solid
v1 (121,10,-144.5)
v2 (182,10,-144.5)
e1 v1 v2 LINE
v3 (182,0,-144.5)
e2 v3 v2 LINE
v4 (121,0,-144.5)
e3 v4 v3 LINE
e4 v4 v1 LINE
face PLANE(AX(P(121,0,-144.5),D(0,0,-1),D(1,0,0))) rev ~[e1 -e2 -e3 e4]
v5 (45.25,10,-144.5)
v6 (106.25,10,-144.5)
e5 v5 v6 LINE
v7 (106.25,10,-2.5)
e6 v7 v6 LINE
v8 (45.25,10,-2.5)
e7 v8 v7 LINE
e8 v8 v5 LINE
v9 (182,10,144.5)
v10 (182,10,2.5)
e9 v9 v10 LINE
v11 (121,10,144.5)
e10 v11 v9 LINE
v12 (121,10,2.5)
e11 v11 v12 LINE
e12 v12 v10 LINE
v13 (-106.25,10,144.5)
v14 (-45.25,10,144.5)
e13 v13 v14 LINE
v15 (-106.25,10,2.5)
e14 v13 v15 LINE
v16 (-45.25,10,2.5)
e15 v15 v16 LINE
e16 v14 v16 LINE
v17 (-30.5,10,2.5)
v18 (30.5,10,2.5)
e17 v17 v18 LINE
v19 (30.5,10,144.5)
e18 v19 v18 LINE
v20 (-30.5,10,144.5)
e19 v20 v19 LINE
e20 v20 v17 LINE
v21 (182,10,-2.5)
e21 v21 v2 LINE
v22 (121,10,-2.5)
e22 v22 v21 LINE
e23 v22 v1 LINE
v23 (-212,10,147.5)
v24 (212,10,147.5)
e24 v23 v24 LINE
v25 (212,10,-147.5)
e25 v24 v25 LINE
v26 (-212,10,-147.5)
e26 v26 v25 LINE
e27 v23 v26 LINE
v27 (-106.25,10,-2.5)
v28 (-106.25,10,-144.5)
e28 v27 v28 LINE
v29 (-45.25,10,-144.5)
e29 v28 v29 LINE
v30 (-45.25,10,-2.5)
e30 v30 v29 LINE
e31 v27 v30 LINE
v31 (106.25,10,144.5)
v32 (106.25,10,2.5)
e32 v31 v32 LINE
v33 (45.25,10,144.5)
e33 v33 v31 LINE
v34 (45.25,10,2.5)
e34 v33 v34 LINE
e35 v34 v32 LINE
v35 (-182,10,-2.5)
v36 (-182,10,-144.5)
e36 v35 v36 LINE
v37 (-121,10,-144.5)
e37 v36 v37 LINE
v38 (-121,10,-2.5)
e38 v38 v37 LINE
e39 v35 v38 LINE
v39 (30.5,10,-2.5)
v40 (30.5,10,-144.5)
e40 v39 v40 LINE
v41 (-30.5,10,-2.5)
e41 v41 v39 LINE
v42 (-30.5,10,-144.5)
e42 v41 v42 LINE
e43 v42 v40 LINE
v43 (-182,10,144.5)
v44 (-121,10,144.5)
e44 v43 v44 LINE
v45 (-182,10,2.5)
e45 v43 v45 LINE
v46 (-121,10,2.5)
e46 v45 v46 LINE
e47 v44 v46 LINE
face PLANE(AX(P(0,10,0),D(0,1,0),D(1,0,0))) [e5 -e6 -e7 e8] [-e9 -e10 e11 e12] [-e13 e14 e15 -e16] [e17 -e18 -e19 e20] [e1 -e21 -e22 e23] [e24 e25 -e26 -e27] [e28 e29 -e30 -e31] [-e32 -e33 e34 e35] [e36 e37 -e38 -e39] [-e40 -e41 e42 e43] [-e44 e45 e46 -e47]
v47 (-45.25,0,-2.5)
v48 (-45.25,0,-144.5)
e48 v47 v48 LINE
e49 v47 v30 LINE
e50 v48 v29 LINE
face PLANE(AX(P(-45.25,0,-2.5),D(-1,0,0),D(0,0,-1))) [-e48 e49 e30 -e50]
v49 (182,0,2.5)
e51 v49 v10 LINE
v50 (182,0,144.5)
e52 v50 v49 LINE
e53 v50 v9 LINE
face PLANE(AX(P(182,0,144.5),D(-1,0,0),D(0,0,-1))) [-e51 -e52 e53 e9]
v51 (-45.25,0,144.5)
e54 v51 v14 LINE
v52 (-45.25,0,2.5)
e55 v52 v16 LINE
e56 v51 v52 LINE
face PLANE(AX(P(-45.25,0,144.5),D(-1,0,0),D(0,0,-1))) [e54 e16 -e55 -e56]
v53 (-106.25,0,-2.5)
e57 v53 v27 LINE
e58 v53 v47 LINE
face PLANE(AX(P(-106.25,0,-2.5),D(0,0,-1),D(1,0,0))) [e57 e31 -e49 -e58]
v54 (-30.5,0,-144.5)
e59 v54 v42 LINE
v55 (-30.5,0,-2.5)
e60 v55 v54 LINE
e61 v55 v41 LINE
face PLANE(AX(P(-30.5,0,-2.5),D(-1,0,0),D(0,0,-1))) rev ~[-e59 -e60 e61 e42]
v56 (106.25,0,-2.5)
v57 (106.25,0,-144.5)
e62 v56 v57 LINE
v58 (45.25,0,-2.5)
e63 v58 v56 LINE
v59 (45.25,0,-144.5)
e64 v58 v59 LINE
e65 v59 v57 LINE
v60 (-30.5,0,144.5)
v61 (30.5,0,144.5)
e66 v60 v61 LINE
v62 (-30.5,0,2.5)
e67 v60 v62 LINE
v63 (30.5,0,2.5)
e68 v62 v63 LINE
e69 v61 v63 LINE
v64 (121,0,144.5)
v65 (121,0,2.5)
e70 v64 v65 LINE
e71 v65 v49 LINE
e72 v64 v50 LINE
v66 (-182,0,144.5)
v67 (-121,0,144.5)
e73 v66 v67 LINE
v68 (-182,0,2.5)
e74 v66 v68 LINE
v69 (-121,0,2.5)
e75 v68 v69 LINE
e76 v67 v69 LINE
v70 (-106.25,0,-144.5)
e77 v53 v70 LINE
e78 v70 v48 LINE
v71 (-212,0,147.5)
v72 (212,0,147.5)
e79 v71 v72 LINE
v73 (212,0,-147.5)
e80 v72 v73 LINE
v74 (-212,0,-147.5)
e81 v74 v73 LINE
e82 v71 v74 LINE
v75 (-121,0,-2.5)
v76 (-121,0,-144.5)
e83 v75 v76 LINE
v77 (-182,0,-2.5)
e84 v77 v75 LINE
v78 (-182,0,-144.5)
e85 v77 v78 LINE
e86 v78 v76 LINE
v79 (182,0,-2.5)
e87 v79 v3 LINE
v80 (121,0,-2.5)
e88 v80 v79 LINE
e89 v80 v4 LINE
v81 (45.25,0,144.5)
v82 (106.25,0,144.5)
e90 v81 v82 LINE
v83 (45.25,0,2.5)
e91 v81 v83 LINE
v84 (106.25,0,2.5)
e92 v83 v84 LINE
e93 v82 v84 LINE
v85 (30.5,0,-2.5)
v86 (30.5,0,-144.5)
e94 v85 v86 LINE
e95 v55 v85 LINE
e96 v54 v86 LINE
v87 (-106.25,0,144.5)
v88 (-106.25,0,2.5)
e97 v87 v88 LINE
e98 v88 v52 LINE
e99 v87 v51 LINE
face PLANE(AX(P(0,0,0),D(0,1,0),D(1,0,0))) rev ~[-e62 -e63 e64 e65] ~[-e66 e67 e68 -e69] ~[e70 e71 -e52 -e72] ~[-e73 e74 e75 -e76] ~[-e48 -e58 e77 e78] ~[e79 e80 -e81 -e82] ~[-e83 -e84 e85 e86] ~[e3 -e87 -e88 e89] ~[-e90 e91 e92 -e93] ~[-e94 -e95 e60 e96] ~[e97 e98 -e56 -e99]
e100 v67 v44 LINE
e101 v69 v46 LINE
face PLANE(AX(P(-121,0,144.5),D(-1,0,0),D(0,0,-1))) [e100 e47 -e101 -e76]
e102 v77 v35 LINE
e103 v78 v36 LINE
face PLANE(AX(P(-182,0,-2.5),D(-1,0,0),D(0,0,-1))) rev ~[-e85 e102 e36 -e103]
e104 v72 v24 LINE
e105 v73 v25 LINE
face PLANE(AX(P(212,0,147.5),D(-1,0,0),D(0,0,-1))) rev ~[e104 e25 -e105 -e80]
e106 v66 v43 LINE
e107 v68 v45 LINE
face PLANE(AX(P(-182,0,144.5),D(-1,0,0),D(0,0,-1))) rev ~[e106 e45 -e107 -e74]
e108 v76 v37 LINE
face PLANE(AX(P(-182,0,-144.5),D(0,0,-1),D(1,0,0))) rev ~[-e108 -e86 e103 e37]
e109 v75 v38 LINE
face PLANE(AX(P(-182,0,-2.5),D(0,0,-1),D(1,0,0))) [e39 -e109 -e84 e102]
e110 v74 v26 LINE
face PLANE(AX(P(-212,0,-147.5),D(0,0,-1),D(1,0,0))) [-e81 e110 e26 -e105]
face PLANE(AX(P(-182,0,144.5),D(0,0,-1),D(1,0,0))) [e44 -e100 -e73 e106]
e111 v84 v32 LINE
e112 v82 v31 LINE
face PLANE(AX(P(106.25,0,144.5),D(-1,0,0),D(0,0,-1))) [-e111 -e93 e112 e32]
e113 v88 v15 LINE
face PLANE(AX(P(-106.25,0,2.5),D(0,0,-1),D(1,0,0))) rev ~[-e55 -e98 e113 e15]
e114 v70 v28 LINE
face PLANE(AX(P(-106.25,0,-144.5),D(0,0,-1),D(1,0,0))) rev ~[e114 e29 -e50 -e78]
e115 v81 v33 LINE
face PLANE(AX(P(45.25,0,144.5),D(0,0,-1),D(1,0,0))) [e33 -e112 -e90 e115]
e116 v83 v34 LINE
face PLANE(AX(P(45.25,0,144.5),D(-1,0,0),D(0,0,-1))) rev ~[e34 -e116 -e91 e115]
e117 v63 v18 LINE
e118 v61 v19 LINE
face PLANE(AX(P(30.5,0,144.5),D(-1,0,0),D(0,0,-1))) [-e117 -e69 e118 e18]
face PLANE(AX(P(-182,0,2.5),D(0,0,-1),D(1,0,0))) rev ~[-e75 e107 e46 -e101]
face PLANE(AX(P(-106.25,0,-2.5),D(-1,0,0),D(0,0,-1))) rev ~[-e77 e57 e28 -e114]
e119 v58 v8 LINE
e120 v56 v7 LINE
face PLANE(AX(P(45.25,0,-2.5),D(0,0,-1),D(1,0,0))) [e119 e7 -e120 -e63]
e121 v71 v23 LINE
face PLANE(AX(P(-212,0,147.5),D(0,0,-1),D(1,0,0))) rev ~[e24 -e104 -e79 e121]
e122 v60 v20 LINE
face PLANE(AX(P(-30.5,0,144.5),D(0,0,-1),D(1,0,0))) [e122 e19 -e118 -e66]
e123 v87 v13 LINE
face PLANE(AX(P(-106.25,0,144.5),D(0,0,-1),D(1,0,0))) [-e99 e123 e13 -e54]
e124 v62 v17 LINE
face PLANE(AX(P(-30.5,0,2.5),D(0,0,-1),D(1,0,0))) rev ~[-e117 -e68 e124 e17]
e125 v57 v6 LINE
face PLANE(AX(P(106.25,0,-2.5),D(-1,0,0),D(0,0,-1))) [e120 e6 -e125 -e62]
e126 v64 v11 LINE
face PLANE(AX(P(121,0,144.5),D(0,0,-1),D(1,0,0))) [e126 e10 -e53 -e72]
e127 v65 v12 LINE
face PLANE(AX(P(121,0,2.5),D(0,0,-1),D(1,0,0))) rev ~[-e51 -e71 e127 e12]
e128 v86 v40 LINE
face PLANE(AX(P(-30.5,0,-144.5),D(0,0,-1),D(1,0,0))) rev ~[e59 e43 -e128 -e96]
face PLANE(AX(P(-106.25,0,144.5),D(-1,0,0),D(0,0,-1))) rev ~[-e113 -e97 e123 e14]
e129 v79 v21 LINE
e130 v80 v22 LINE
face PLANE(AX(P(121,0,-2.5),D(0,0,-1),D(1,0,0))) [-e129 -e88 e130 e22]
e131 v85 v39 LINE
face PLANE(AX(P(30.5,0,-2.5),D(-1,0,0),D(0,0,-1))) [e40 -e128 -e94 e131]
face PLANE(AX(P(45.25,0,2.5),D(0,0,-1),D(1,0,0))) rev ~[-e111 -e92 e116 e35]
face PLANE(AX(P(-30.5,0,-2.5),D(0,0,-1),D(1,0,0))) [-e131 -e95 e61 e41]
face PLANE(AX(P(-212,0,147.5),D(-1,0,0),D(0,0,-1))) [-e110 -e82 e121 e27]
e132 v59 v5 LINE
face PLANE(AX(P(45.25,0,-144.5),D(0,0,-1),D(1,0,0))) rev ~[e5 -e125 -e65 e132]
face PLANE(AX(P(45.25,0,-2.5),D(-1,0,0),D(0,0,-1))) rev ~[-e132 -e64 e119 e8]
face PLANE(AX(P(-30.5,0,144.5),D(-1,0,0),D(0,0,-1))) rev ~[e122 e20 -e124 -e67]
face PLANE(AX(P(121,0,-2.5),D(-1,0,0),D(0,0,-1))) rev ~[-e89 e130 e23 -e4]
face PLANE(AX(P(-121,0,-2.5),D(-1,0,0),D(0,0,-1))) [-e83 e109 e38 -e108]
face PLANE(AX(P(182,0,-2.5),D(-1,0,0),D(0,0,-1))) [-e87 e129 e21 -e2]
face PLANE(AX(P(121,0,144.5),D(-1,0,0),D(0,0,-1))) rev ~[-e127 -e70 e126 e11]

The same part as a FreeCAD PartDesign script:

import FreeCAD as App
import Part
import Sketcher

V = App.Vector


def add_polygon(sketch, points):
    """Adds a closed chain of lines whose ends are joined by coincident constraints."""
    first, n = sketch.GeometryCount, len(points)
    for a, b in zip(points, points[1:] + points[:1]):
        sketch.addGeometry(Part.LineSegment(App.Vector(*a, 0), App.Vector(*b, 0)), False)
    for i in range(n):
        sketch.addConstraint(Sketcher.Constraint("Coincident", first + i, 2, first + (i + 1) % n, 1))

doc = App.newDocument("Part")
body = doc.addObject("PartDesign::Body", "Body")

sketch1 = body.newObject("Sketcher::SketchObject", "Sketch")
sketch1.AttachmentSupport = (doc.getObject("XZ_Plane"), [""])
sketch1.MapMode = "FlatFace"
add_polygon(sketch1, [(-212, -148), (-212, 148), (212, 148), (212, -148)])
add_polygon(sketch1, [(-121, 144), (-182, 144), (-182, 2), (-121, 2)])
add_polygon(sketch1, [(-45, 144), (-106, 144), (-106, 2), (-45, 2)])
add_polygon(sketch1, [(30, 144), (-30, 144), (-30, 2), (30, 2)])
add_polygon(sketch1, [(106, 144), (45, 144), (45, 2), (106, 2)])
add_polygon(sketch1, [(182, 144), (121, 144), (121, 2), (182, 2)])
add_polygon(sketch1, [(-121, -2), (-182, -2), (-182, -144), (-121, -144)])
add_polygon(sketch1, [(-45, -2), (-106, -2), (-106, -144), (-45, -144)])
add_polygon(sketch1, [(30, -2), (-30, -2), (-30, -144), (30, -144)])
add_polygon(sketch1, [(106, -2), (45, -2), (45, -144), (106, -144)])
add_polygon(sketch1, [(182, -2), (121, -2), (121, -144), (182, -144)])
sketch1.addConstraint([
    Sketcher.Constraint("Vertical", 0),
    Sketcher.Constraint("Horizontal", 1),
    Sketcher.Constraint("Vertical", 2),
    Sketcher.Constraint("Horizontal", 3),
    Sketcher.Constraint("Horizontal", 4),
    Sketcher.Constraint("Vertical", 5),
    Sketcher.Constraint("Horizontal", 6),
    Sketcher.Constraint("Vertical", 7),
    Sketcher.Constraint("Horizontal", 8),
    Sketcher.Constraint("Vertical", 9),
    Sketcher.Constraint("Horizontal", 10),
    Sketcher.Constraint("Vertical", 11),
    Sketcher.Constraint("Horizontal", 12),
    Sketcher.Constraint("Vertical", 13),
    Sketcher.Constraint("Horizontal", 14),
    Sketcher.Constraint("Vertical", 15),
    Sketcher.Constraint("Horizontal", 16),
    Sketcher.Constraint("Vertical", 17),
    Sketcher.Constraint("Horizontal", 18),
    Sketcher.Constraint("Vertical", 19),
    Sketcher.Constraint("Horizontal", 20),
    Sketcher.Constraint("Vertical", 21),
    Sketcher.Constraint("Horizontal", 22),
    Sketcher.Constraint("Vertical", 23),
    Sketcher.Constraint("Horizontal", 24),
    Sketcher.Constraint("Vertical", 25),
    Sketcher.Constraint("Horizontal", 26),
    Sketcher.Constraint("Vertical", 27),
    Sketcher.Constraint("Horizontal", 28),
    Sketcher.Constraint("Vertical", 29),
    Sketcher.Constraint("Horizontal", 30),
    Sketcher.Constraint("Vertical", 31),
    Sketcher.Constraint("Horizontal", 32),
    Sketcher.Constraint("Vertical", 33),
    Sketcher.Constraint("Horizontal", 34),
    Sketcher.Constraint("Vertical", 35),
    Sketcher.Constraint("Horizontal", 36),
    Sketcher.Constraint("Vertical", 37),
    Sketcher.Constraint("Horizontal", 38),
    Sketcher.Constraint("Vertical", 39),
    Sketcher.Constraint("Horizontal", 40),
    Sketcher.Constraint("Vertical", 41),
    Sketcher.Constraint("Horizontal", 42),
    Sketcher.Constraint("Vertical", 43),
    Sketcher.Constraint("Symmetric", 0, 2, 2, 2, -1, 1),
    Sketcher.Constraint("Symmetric", 22, 2, 24, 2, -1, 1),
    Sketcher.Constraint("Symmetric", 20, 2, 26, 2, -1, 1),
    Sketcher.Constraint("Symmetric", 18, 2, 28, 2, -1, 1),
    Sketcher.Constraint("Symmetric", 16, 2, 30, 2, -1, 1),
    Sketcher.Constraint("Symmetric", 14, 2, 32, 2, -1, 1),
    Sketcher.Constraint("Symmetric", 12, 2, 34, 2, -1, 1),
    Sketcher.Constraint("Symmetric", 10, 2, 36, 2, -1, 1),
    Sketcher.Constraint("Symmetric", 8, 2, 38, 2, -1, 1),
    Sketcher.Constraint("Symmetric", 6, 2, 40, 2, -1, 1),
    Sketcher.Constraint("Symmetric", 4, 2, 42, 2, -1, 1),
    Sketcher.Constraint("Symmetric", 11, 2, 16, 2, -2),
    Sketcher.Constraint("Symmetric", 9, 2, 18, 2, -2),
    Sketcher.Constraint("Symmetric", 7, 2, 20, 2, -2),
    Sketcher.Constraint("Symmetric", 5, 2, 22, 2, -2),
    Sketcher.Constraint("Horizontal", 7, 2, 8, 2),
    Sketcher.Constraint("Horizontal", 6, 2, 9, 2),
    Sketcher.Constraint("Horizontal", 11, 2, 12, 2),
    Sketcher.Constraint("Horizontal", 10, 2, 13, 2),
    Sketcher.Constraint("Vertical", 13, 2, 32, 2),
    Sketcher.Constraint("Equal", 6, 8),
    Sketcher.Constraint("Equal", 10, 12),
    Sketcher.Constraint("DistanceX", 1, 1, 1, 2, 424.0),
    Sketcher.Constraint("DistanceX", 4, 2, 4, 1, 61.0),
    Sketcher.Constraint("DistanceY", 0, 1, 0, 2, 295.0),
    Sketcher.Constraint("DistanceY", 5, 2, 5, 1, 142.0),
    Sketcher.Constraint("DistanceX", 4, 2, -1, 1, 182.0),
    Sketcher.Constraint("DistanceY", 4, 2, 0, 2, 3.0),
    Sketcher.Constraint("DistanceX", 11, 2, 16, 2, 90.5),
])
pad1 = body.newObject("PartDesign::Pad", "Pad")
pad1.Profile = sketch1
pad1.Length = 10
pad1.Reversed = True

doc.recompute()
